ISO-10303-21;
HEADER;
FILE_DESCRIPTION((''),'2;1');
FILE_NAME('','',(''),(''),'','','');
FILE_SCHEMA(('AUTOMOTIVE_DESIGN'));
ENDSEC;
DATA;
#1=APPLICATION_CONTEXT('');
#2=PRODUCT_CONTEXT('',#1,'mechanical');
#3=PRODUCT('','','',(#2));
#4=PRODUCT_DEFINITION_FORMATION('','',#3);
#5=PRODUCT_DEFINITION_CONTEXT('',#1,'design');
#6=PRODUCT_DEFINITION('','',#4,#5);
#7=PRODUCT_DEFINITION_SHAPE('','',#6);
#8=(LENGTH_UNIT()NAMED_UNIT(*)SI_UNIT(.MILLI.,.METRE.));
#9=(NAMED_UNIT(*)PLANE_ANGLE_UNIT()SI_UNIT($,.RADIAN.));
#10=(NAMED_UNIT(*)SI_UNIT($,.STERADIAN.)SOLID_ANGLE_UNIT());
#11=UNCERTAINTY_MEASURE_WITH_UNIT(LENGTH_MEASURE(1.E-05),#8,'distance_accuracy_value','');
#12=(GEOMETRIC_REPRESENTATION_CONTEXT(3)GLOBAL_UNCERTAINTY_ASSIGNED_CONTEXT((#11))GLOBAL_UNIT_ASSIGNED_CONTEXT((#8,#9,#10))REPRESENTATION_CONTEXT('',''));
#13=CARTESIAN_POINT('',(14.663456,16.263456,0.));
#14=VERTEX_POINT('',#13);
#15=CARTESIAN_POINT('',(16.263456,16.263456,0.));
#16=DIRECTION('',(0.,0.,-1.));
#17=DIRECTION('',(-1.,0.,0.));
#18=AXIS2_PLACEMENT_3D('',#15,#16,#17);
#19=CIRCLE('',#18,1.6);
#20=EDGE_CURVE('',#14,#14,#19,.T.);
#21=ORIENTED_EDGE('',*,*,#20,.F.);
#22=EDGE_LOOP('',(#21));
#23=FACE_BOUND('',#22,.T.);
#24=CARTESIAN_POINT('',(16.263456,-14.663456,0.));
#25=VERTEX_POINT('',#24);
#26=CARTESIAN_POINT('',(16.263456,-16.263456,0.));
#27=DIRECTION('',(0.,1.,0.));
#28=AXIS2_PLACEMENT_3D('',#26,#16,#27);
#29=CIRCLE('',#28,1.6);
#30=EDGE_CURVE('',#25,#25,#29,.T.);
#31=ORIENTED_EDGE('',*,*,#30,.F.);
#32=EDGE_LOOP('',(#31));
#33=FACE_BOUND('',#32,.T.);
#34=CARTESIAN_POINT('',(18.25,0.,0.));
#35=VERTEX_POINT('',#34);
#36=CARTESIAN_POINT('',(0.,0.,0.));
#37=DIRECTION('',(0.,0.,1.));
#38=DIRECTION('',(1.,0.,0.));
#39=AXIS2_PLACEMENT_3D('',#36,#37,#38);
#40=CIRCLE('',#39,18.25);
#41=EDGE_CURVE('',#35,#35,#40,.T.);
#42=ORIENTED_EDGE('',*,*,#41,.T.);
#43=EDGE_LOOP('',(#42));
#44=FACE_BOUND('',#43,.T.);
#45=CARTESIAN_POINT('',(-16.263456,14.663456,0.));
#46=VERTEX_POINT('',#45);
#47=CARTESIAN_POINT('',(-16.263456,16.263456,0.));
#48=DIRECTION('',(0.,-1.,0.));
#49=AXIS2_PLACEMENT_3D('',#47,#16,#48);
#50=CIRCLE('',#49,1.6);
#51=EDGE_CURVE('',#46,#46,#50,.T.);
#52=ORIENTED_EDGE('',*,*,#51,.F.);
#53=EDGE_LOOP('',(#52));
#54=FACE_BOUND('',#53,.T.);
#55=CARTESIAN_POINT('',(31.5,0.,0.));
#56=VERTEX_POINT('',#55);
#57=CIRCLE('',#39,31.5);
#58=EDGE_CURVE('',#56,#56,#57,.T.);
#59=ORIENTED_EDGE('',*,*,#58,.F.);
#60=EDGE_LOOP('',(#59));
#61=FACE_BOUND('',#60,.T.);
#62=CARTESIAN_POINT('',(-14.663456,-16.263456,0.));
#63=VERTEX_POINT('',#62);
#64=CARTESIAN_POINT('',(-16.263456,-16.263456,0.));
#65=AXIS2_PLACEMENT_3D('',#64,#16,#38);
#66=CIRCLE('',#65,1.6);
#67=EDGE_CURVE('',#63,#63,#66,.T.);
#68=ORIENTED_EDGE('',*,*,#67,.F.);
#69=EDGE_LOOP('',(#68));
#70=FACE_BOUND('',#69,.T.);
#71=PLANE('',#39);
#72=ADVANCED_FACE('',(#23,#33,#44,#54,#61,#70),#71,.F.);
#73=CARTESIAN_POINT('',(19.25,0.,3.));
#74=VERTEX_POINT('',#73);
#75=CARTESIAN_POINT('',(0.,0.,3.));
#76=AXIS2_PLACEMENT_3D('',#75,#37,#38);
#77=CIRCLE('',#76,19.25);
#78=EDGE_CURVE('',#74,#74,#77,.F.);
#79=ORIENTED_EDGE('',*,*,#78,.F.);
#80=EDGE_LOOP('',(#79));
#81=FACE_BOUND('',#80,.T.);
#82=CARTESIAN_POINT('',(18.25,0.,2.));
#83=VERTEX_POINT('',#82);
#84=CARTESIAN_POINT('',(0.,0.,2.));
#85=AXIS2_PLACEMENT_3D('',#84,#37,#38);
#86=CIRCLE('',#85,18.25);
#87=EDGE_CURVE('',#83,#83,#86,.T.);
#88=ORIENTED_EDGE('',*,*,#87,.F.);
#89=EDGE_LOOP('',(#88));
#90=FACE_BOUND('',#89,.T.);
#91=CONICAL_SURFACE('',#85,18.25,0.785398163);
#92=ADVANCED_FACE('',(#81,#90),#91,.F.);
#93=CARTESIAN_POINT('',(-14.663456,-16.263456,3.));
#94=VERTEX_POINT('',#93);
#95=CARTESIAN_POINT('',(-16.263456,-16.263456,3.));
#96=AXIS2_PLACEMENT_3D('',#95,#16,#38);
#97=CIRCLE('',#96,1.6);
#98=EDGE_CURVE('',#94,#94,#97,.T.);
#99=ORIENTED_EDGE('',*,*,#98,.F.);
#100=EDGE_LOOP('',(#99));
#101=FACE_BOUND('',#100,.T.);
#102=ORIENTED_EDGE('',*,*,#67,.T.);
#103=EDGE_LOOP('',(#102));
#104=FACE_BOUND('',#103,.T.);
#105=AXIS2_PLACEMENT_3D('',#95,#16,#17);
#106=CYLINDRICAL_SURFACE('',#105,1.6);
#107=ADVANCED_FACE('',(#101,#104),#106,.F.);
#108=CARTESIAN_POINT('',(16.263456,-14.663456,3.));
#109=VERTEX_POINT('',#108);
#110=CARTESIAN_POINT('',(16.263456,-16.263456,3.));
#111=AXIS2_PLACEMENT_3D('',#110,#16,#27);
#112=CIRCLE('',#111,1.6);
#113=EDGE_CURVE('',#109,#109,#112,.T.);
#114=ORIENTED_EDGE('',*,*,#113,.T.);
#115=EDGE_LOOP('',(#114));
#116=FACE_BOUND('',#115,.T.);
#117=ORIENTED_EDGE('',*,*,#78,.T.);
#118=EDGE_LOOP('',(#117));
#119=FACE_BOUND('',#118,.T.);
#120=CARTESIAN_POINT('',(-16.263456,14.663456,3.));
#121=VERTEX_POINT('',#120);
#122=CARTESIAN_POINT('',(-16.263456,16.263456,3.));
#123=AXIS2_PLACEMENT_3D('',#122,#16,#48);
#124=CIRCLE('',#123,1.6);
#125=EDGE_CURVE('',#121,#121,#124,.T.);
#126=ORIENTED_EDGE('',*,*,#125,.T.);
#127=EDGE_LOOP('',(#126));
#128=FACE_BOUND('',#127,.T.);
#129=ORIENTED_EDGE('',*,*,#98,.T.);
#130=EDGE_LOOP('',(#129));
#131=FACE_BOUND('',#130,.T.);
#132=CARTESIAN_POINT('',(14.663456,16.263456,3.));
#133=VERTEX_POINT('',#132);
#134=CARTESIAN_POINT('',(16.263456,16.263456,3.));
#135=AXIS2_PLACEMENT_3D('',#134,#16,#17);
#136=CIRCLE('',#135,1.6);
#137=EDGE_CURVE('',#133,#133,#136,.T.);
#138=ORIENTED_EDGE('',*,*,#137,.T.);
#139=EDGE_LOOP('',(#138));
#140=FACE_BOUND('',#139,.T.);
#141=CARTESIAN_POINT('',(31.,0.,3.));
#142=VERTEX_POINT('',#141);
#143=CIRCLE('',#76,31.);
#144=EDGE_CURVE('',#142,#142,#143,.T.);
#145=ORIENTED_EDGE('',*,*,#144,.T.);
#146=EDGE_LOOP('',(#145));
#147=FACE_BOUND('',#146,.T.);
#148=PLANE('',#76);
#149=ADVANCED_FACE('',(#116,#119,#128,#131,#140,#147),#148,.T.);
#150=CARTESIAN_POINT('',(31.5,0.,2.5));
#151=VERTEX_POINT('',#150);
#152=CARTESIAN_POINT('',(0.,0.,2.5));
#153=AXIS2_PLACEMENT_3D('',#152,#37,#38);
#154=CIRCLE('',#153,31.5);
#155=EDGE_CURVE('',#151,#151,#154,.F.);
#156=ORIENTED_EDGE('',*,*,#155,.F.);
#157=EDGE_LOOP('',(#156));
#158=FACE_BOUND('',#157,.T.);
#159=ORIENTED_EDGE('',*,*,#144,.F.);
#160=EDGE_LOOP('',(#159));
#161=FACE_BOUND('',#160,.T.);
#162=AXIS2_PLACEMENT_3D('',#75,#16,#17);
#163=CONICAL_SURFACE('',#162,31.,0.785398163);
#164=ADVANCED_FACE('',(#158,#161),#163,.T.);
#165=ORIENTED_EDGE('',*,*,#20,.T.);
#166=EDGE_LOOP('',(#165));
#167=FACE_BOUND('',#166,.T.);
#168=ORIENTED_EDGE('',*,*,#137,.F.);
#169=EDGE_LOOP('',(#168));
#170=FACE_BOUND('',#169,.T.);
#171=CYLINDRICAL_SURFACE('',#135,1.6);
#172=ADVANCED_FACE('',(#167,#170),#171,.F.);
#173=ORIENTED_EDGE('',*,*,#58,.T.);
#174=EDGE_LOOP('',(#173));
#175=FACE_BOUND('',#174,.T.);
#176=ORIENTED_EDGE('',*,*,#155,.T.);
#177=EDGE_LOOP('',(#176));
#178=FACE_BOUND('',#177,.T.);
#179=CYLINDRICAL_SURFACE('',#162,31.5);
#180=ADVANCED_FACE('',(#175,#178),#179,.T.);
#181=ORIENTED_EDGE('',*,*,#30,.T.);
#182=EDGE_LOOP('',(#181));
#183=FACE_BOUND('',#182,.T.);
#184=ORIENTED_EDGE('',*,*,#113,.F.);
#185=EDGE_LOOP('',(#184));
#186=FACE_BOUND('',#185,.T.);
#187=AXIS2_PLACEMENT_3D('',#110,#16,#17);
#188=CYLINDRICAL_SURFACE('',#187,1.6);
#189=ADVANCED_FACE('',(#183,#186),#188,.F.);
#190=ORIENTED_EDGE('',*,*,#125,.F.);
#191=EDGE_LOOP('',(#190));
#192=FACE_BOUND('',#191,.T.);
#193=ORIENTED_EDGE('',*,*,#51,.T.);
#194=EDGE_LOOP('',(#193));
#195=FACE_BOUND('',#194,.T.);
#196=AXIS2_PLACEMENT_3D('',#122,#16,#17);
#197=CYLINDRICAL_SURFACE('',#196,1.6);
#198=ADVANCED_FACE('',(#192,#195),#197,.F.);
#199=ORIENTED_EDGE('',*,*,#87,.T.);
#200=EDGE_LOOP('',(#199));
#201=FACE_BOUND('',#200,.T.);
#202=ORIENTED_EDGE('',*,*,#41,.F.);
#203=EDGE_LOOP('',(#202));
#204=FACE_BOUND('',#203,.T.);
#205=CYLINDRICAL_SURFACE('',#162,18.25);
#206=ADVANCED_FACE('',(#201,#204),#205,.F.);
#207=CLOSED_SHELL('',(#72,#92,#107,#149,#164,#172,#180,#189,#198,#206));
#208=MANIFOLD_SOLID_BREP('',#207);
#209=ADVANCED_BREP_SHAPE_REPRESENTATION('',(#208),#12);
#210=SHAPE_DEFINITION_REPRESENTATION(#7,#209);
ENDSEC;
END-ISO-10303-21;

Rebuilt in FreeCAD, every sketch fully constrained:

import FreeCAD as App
import Part
import Sketcher
from FreeCAD import Vector
Q = App.Units.Quantity


def edges_at(feature, points):
    """Names of the edges that pass closest to the given points."""
    edges = feature.Shape.Edges
    near = lambda p: min(range(len(edges)), key=lambda i: edges[i].distToShape(Part.Vertex(*p))[0])
    return sorted({f"Edge{near(p) + 1}" for p in points})

doc = App.newDocument("Part")
params = doc.addObject("Spreadsheet::Sheet", "Params")
for row, (alias, value) in enumerate([
    ("sketch1_diameter", "63 mm"),
    ("sketch1_diameter2", "36.5 mm"),
    ("pad1_length", "3 mm"),
    ("chamfer_size", "1 mm"),
    ("chamfer2_size", "0.5 mm"),
    ("sketch2_diameter", "3.2 mm"),
], start=1):
    params.set(f"A{row}", alias)
    params.set(f"B{row}", "=" + value)
    params.setAlias(f"B{row}", alias)

body = doc.addObject("PartDesign::Body", "Body")

sketch1 = doc.addObject("Sketcher::SketchObject", "Sketch")
body.addObject(sketch1)
sketch1.AttachmentSupport = (doc.XY_Plane, [""])
sketch1.MapMode = "FlatFace"
sketch1.addGeometry(Part.Circle(Vector(0, 0, 0), Vector(0, 0, 1), 32), False)
sketch1.addGeometry(Part.Circle(Vector(0, 0, 0), Vector(0, 0, 1), 18), False)
sketch1.addConstraint(Sketcher.Constraint("Coincident", 0, 3, -1, 1))
sketch1.addConstraint(Sketcher.Constraint("Coincident", 1, 3, -1, 1))
sketch1.addConstraint(Sketcher.Constraint("Diameter", 0, Q("63 mm")))
sketch1.addConstraint(Sketcher.Constraint("Diameter", 1, Q("36.5 mm")))
sketch1.setExpression("Constraints[2]", "Params.sketch1_diameter")
sketch1.setExpression("Constraints[3]", "Params.sketch1_diameter2")
pad1 = doc.addObject("PartDesign::Pad", "Pad")
body.addObject(pad1)
pad1.Profile = sketch1
pad1.setExpression("Length", "Params.pad1_length")
doc.recompute()

chamfer = doc.addObject("PartDesign::Chamfer", "Chamfer")
body.addObject(chamfer)
chamfer.Base = (pad1, edges_at(pad1, [(-18.25, 0, 3)]))
chamfer.setExpression("Size", "Params.chamfer_size")
doc.recompute()

chamfer2 = doc.addObject("PartDesign::Chamfer", "Chamfer001")
body.addObject(chamfer2)
chamfer2.Base = (chamfer, edges_at(chamfer, [(-31.5, 0, 3)]))
chamfer2.setExpression("Size", "Params.chamfer2_size")

sketch2 = doc.addObject("Sketcher::SketchObject", "Sketch001")
body.addObject(sketch2)
sketch2.AttachmentSupport = (doc.XY_Plane, [""])
sketch2.MapMode = "FlatFace"
sketch2.addGeometry(Part.Circle(Vector(16.3, 16.3, 0), Vector(0, 0, 1), 1.6), False)
sketch2.addConstraint(Sketcher.Constraint("Diameter", 0, Q("3.2 mm")))
sketch2.addConstraint(Sketcher.Constraint("DistanceX", -1, 1, 0, 3, Q("16.263456 mm")))
sketch2.addConstraint(Sketcher.Constraint("DistanceY", -1, 1, 0, 3, Q("16.263456 mm")))
sketch2.setExpression("Constraints[0]", "Params.sketch2_diameter")
pocket1 = doc.addObject("PartDesign::Pocket", "Pocket")
body.addObject(pocket1)
pocket1.Profile = sketch2
pocket1.Type = "ThroughAll"
pocket1.Reversed = True
doc.recompute()

polarpattern = doc.addObject("PartDesign::PolarPattern", "PolarPattern")
body.addObject(polarpattern)
polarpattern.Originals = [pocket1]
polarpattern.Axis = (doc.Z_Axis, [""])
polarpattern.Angle = 360
polarpattern.Occurrences = 4
body.Tip = polarpattern

doc.recompute()
